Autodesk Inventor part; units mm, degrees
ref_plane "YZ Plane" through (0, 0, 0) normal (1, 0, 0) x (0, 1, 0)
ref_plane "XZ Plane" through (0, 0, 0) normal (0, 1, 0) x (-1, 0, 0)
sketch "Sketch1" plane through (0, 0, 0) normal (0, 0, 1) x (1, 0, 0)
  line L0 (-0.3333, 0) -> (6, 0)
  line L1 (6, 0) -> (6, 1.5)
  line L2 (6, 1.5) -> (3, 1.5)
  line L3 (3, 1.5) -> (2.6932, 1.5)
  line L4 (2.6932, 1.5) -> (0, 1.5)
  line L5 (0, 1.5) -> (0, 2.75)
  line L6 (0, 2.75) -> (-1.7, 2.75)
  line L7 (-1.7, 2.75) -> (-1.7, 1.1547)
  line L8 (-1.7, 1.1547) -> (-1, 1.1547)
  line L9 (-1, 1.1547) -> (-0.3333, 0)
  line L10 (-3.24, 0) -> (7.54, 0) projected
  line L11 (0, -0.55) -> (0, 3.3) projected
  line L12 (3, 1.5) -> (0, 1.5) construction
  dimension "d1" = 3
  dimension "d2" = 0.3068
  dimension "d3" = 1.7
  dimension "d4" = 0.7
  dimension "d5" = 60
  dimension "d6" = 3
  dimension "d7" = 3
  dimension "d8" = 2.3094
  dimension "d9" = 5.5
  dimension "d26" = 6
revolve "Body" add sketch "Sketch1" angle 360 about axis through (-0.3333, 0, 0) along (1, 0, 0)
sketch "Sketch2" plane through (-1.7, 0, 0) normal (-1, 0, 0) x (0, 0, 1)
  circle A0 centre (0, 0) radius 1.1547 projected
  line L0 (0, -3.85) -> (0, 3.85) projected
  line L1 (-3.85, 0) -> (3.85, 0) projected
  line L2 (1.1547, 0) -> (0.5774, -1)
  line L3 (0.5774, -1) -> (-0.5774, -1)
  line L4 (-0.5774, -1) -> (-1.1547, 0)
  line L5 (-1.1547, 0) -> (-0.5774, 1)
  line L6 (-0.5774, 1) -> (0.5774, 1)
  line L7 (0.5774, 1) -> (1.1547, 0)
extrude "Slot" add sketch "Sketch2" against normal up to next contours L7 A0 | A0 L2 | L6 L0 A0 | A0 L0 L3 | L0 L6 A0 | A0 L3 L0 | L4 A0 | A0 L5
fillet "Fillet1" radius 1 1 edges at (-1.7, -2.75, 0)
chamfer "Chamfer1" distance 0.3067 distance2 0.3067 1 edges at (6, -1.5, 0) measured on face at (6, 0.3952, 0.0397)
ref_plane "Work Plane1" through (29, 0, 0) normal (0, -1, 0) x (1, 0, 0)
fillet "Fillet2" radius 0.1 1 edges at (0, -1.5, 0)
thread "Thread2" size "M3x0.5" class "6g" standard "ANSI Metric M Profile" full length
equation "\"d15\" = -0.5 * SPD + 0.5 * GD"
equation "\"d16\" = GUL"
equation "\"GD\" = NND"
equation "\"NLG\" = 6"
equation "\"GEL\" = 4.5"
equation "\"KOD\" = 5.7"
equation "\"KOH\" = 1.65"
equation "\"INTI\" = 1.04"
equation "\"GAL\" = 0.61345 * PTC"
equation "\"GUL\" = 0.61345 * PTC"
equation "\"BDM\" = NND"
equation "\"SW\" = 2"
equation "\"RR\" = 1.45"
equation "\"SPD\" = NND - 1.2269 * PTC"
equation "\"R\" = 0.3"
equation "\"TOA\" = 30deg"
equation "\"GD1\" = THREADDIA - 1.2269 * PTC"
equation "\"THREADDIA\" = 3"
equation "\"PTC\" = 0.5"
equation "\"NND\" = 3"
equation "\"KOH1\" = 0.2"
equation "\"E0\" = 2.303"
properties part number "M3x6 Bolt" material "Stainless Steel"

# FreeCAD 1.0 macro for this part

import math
import FreeCAD as App
import Part
import Sketcher


def edges_at(feature, points):
    """Names of the edges that pass closest to the given points."""
    edges = feature.Shape.Edges
    near = lambda p: min(range(len(edges)), key=lambda i: edges[i].distToShape(Part.Vertex(*p))[0])
    return sorted({f"Edge{near(p) + 1}" for p in points})


def add_polygon(sketch, points):
    """Adds a closed chain of lines whose ends are joined by coincident constraints."""
    first, n = sketch.GeometryCount, len(points)
    for a, b in zip(points, points[1:] + points[:1]):
        sketch.addGeometry(Part.LineSegment(App.Vector(*a, 0), App.Vector(*b, 0)), False)
    for i in range(n):
        sketch.addConstraint(Sketcher.Constraint("Coincident", first + i, 2, first + (i + 1) % n, 1))

doc = App.newDocument("Part")
body = doc.addObject("PartDesign::Body", "Body")

sketch1 = body.newObject("Sketcher::SketchObject", "Sketch")
sketch1.AttachmentSupport = (doc.getObject("XY_Plane"), [""])
sketch1.MapMode = "FlatFace"
add_polygon(sketch1, [(-1, 1.2), (-0.3, 0), (6, 0), (6, 1.5), (0, 1.5), (0, 2.8), (-1.7, 2.8), (-1.7, 1.2)])
sketch1.addConstraint(Sketcher.Constraint("Horizontal", 1))
sketch1.addConstraint(Sketcher.Constraint("Vertical", 2))
sketch1.addConstraint(Sketcher.Constraint("Horizontal", 3))
sketch1.addConstraint(Sketcher.Constraint("Vertical", 4))
sketch1.addConstraint(Sketcher.Constraint("Horizontal", 5))
sketch1.addConstraint(Sketcher.Constraint("Vertical", 6))
sketch1.addConstraint(Sketcher.Constraint("Horizontal", 7))
sketch1.addConstraint(Sketcher.Constraint("PointOnObject", 0, 2, -1))
sketch1.addConstraint(Sketcher.Constraint("PointOnObject", 3, 2, -2))
sketch1.addConstraint(Sketcher.Constraint("DistanceX", 3, 2, 3, 1, 6.0))
sketch1.addConstraint(Sketcher.Constraint("DistanceX", 5, 2, 5, 1, 1.7))
sketch1.addConstraint(Sketcher.Constraint("DistanceX", 7, 1, 7, 2, 0.7))
sketch1.addConstraint(Sketcher.Constraint("DistanceY", 2, 1, 2, 2, 1.5))
sketch1.addConstraint(Sketcher.Constraint("DistanceY", 4, 1, 4, 2, 1.25))
sketch1.addConstraint(Sketcher.Constraint("DistanceX", 1, 1, 1, 2, 6.3333))
sketch1.addConstraint(Sketcher.Constraint("DistanceY", 6, 2, 6, 1, 1.5953))
revolution = body.newObject("PartDesign::Revolution", "Revolution")
revolution.Profile = sketch1
revolution.ReferenceAxis = (sketch1, ["H_Axis"])
revolution.Angle = 360

sketch2 = body.newObject("Sketcher::SketchObject", "Sketch001")
sketch2.AttachmentSupport = (doc.getObject("YZ_Plane"), [""])
sketch2.MapMode = "FlatFace"
sketch2.AttachmentOffset = App.Placement(App.Vector(0, 0, -1.7), App.Rotation())
sketch2.addGeometry(Part.LineSegment(App.Vector(1, 0.6, 0), App.Vector(0, 1.2, 0)), False)
sketch2.addGeometry(Part.ArcOfCircle(Part.Circle(App.Vector(0, 0, 0), App.Vector(0, 0, 1), 1.2), math.radians(30), math.radians(90)), False)
sketch2.addGeometry(Part.ArcOfCircle(Part.Circle(App.Vector(0, 0, 0), App.Vector(0, 0, 1), 1.2), math.radians(90), math.radians(150)), False)
sketch2.addGeometry(Part.LineSegment(App.Vector(0, 1.2, 0), App.Vector(-1, 0.6, 0)), False)
sketch2.addGeometry(Part.ArcOfCircle(Part.Circle(App.Vector(0, 0, 0), App.Vector(0, 0, 1), 1.2), math.radians(-30), math.radians(30)), False)
sketch2.addGeometry(Part.LineSegment(App.Vector(1, 0.6, 0), App.Vector(1, -0.6, 0)), False)
sketch2.addGeometry(Part.LineSegment(App.Vector(-1, 0.6, 0), App.Vector(-1, -0.6, 0)), False)
sketch2.addGeometry(Part.ArcOfCircle(Part.Circle(App.Vector(0, 0, 0), App.Vector(0, 0, 1), 1.2), math.radians(150), math.radians(210)), False)
sketch2.addGeometry(Part.LineSegment(App.Vector(-1, -0.6, 0), App.Vector(0, -1.2, 0)), False)
sketch2.addGeometry(Part.ArcOfCircle(Part.Circle(App.Vector(0, 0, 0), App.Vector(0, 0, 1), 1.2), math.radians(-150), math.radians(-90)), False)
sketch2.addGeometry(Part.ArcOfCircle(Part.Circle(App.Vector(0, 0, 0), App.Vector(0, 0, 1), 1.2), math.radians(-90), math.radians(-30)), False)
sketch2.addGeometry(Part.LineSegment(App.Vector(0, -1.2, 0), App.Vector(1, -0.6, 0)), False)
sketch2.addConstraint(Sketcher.Constraint("Coincident", 0, 1, 1, 1))
sketch2.addConstraint(Sketcher.Constraint("Coincident", 1, 2, 0, 2))
sketch2.addConstraint(Sketcher.Constraint("Coincident", 2, 1, 3, 1))
sketch2.addConstraint(Sketcher.Constraint("Coincident", 3, 2, 2, 2))
sketch2.addConstraint(Sketcher.Constraint("Coincident", 4, 1, 5, 2))
sketch2.addConstraint(Sketcher.Constraint("Coincident", 5, 1, 4, 2))
sketch2.addConstraint(Sketcher.Constraint("Coincident", 6, 1, 7, 1))
sketch2.addConstraint(Sketcher.Constraint("Coincident", 7, 2, 6, 2))
sketch2.addConstraint(Sketcher.Constraint("Coincident", 8, 1, 9, 1))
sketch2.addConstraint(Sketcher.Constraint("Coincident", 9, 2, 8, 2))
sketch2.addConstraint(Sketcher.Constraint("Coincident", 10, 1, 11, 1))
sketch2.addConstraint(Sketcher.Constraint("Coincident", 11, 2, 10, 2))
sketch2.addConstraint(Sketcher.Constraint("Vertical", 5))
sketch2.addConstraint(Sketcher.Constraint("Vertical", 6))
sketch2.addConstraint(Sketcher.Constraint("Coincident", 1, 3, -1, 1))
sketch2.addConstraint(Sketcher.Constraint("Coincident", 2, 3, -1, 1))
sketch2.addConstraint(Sketcher.Constraint("Coincident", 4, 3, -1, 1))
sketch2.addConstraint(Sketcher.Constraint("Coincident", 7, 3, -1, 1))
sketch2.addConstraint(Sketcher.Constraint("Coincident", 9, 3, -1, 1))
sketch2.addConstraint(Sketcher.Constraint("Coincident", 10, 3, -1, 1))
sketch2.addConstraint(Sketcher.Constraint("Coincident", 2, 1, 1, 2))
sketch2.addConstraint(Sketcher.Constraint("Coincident", 5, 1, 0, 1))
sketch2.addConstraint(Sketcher.Constraint("Coincident", 6, 1, 3, 2))
sketch2.addConstraint(Sketcher.Constraint("Coincident", 8, 1, 7, 2))
sketch2.addConstraint(Sketcher.Constraint("Coincident", 10, 1, 9, 2))
sketch2.addConstraint(Sketcher.Constraint("PointOnObject", 1, 2, -2))
sketch2.addConstraint(Sketcher.Constraint("PointOnObject", 9, 2, -2))
sketch2.addConstraint(Sketcher.Constraint("Parallel", 0, 8))
sketch2.addConstraint(Sketcher.Constraint("Parallel", 3, 11))
sketch2.addConstraint(Sketcher.Constraint("DistanceX", -1, 1, 0, 1, 1.0))
sketch2.addConstraint(Sketcher.Constraint("Radius", 1, 1.1547))
pad1 = body.newObject("PartDesign::Pad", "Pad")
pad1.Profile = sketch2
pad1.Type = "UpToFirst"
doc.recompute()

fillet = body.newObject("PartDesign::Fillet", "Fillet")
fillet.Base = (pad1, edges_at(pad1, [(-1.7, -2.75, 0)]))
fillet.Radius = 1
doc.recompute()

chamfer = body.newObject("PartDesign::Chamfer", "Chamfer")
chamfer.Base = (fillet, edges_at(fillet, [(6, -1.5, 0)]))
chamfer.ChamferType = "Two distances"
chamfer.Size = 0.3067
chamfer.Size2 = 0.3067
doc.recompute()

fillet2 = body.newObject("PartDesign::Fillet", "Fillet001")
fillet2.Base = (chamfer, edges_at(chamfer, [(0, -1.5, 0)]))
fillet2.Radius = 0.1

doc.recompute()
